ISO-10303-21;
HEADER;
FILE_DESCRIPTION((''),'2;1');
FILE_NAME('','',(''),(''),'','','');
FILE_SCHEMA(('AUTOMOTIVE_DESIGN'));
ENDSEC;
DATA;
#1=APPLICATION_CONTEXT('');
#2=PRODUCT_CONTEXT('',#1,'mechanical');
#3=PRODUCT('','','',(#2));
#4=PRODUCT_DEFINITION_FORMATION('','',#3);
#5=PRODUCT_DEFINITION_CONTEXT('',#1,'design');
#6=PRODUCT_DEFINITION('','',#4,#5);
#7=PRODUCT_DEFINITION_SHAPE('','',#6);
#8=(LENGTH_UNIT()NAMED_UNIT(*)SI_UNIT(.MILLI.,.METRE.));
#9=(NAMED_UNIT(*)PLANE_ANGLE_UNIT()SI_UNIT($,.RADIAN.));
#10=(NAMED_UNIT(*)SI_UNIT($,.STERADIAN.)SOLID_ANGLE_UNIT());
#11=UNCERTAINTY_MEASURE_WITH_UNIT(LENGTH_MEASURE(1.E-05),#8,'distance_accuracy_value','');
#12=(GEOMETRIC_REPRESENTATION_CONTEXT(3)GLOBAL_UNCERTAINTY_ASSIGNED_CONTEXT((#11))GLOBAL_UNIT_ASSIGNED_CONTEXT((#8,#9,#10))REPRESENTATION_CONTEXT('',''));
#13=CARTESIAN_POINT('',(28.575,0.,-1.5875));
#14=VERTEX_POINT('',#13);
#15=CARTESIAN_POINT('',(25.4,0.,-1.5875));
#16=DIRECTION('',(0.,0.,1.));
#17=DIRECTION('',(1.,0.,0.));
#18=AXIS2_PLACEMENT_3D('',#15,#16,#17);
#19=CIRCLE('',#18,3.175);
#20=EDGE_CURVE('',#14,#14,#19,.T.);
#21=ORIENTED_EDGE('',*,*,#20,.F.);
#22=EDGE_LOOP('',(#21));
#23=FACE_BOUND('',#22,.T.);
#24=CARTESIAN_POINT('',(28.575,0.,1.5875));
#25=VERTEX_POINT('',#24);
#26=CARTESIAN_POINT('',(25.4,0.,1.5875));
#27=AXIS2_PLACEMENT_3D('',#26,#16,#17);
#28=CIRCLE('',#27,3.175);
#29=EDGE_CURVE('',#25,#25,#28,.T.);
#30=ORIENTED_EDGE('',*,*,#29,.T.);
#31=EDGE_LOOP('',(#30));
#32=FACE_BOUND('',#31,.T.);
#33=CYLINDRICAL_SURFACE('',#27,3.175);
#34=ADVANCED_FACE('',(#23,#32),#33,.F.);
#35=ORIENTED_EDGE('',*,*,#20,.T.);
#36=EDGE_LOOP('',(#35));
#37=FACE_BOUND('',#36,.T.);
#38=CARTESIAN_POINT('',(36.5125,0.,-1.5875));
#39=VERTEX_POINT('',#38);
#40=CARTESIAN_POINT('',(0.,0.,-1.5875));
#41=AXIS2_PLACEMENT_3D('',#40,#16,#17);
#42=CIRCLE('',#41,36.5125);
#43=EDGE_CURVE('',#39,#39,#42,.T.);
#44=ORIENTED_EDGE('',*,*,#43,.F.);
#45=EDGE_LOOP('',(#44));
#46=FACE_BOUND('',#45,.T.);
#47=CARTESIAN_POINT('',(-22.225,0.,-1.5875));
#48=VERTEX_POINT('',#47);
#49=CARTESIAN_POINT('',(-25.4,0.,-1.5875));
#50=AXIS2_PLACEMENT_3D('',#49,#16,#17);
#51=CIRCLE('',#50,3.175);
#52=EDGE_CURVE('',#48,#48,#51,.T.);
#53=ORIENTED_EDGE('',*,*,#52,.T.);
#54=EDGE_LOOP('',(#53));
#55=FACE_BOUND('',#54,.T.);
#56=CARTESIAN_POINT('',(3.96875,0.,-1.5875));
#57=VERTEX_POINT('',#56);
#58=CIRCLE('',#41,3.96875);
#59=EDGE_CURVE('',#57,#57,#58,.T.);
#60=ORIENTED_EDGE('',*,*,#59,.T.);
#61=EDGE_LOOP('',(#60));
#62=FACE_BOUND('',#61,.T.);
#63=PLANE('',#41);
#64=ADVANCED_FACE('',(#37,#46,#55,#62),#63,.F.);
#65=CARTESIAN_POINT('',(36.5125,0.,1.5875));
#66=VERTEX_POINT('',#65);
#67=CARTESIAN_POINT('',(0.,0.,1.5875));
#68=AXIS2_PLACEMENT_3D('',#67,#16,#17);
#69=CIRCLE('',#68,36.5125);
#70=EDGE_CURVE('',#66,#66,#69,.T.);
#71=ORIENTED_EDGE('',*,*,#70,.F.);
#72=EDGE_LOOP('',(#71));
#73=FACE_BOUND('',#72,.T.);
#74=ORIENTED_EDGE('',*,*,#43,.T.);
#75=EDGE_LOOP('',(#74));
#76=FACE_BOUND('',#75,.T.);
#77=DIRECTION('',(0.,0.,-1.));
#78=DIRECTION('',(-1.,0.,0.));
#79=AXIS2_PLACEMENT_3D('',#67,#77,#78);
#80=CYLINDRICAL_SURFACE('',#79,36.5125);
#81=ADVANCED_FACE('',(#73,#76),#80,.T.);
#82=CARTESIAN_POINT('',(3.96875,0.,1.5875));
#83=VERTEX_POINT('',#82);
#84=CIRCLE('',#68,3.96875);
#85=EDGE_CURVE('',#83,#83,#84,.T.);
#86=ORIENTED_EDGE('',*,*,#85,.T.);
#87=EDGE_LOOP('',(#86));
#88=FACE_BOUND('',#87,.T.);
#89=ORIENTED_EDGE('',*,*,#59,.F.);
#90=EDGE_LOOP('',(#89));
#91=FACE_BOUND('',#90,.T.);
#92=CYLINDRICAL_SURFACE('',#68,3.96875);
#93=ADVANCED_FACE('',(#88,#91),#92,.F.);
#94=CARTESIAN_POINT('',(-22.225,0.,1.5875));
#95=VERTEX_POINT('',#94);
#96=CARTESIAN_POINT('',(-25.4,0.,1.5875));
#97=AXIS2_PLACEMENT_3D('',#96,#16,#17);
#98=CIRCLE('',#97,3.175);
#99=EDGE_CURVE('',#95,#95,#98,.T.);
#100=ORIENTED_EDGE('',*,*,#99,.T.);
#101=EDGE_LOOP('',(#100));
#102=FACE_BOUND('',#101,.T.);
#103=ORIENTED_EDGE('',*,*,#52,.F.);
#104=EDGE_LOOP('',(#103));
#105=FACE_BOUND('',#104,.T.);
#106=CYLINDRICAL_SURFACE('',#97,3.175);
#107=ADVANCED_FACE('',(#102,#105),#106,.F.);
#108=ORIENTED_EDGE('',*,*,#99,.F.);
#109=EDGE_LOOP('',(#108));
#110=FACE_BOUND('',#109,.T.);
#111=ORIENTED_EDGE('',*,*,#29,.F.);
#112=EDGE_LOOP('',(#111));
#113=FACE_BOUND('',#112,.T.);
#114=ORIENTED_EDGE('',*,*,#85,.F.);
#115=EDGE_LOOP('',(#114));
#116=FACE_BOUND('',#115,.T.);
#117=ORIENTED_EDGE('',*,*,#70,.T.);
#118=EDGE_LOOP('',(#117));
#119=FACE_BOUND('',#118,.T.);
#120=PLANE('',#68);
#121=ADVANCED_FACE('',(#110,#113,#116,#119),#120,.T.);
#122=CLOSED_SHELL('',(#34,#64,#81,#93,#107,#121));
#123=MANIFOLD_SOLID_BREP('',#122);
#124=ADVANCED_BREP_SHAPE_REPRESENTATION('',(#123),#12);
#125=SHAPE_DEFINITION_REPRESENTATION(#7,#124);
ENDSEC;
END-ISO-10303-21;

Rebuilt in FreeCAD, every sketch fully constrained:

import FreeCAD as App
import Part
import Sketcher
from FreeCAD import Vector
Q = App.Units.Quantity

doc = App.newDocument("Part")
body = doc.addObject("PartDesign::Body", "Body")

# Sketch on XY plane
sketch1 = body.newObject("Sketcher::SketchObject", "Sketch")
sketch1.AttachmentSupport = (doc.getObject("XY_Plane"), [""])
sketch1.MapMode = "FlatFace"
sketch1.addGeometry(Part.Circle(Vector(0, 0, 0), Vector(0, 0, 1), 37), False)
sketch1.addConstraint([
    Sketcher.Constraint("Coincident", 0, 3, -1, 1),
    Sketcher.Constraint("Diameter", 0, Q("2.875 in")),
])
pad1 = body.newObject("PartDesign::Pad", "Pad")
pad1.Profile = sketch1
pad1.Length = Q("0.125 in")
pad1.Midplane = True

# Sketch on XY plane
sketch2 = body.newObject("Sketcher::SketchObject", "Sketch001")
sketch2.AttachmentSupport = (doc.getObject("XY_Plane"), [""])
sketch2.MapMode = "FlatFace"
sketch2.AttachmentOffset = App.Placement(Vector(0, 0, 0.0625 * 25.4), App.Rotation())
sketch2.addGeometry([
    Part.Circle(Vector(-25.4, 0, 0), Vector(0, 0, 1), 3.2),
    Part.Circle(Vector(25.4, 0, 0), Vector(0, 0, 1), 3.2),
], False)
sketch2.addConstraint([
    Sketcher.Constraint("Equal", 0, 1),
    Sketcher.Constraint("Symmetric", 0, 3, 1, 3, -1, 1),
    Sketcher.Constraint("PointOnObject", 0, 3, -1),
    Sketcher.Constraint("Diameter", 0, Q("0.25 in")),
    Sketcher.Constraint("DistanceX", 0, 3, -1, 1, Q("1 in")),
])
doc.recompute()
hole = body.newObject("PartDesign::Hole", "Hole")
hole.Profile = sketch2
hole.ThreadType = "None"
hole.Diameter = Q("0.25 in")
hole.DepthType = "ThroughAll"

# Sketch on XY plane
sketch3 = body.newObject("Sketcher::SketchObject", "Sketch002")
sketch3.AttachmentSupport = (doc.getObject("XY_Plane"), [""])
sketch3.MapMode = "FlatFace"
sketch3.AttachmentOffset = App.Placement(Vector(0, 0, 0.0625 * 25.4), App.Rotation())
sketch3.addGeometry(Part.Circle(Vector(0, 0, 0), Vector(0, 0, 1), 4), False)
sketch3.addConstraint([
    Sketcher.Constraint("Coincident", 0, 3, -1, 1),
    Sketcher.Constraint("Diameter", 0, Q("0.3125 in")),
])
doc.recompute()
hole2 = body.newObject("PartDesign::Hole", "Hole001")
hole2.Profile = sketch3
hole2.ThreadType = "None"
hole2.Diameter = Q("0.3125 in")
hole2.DepthType = "Dimension"
hole2.Depth = Q("0.13 in")
hole2.DrillPoint = "Flat"

doc.recompute()
